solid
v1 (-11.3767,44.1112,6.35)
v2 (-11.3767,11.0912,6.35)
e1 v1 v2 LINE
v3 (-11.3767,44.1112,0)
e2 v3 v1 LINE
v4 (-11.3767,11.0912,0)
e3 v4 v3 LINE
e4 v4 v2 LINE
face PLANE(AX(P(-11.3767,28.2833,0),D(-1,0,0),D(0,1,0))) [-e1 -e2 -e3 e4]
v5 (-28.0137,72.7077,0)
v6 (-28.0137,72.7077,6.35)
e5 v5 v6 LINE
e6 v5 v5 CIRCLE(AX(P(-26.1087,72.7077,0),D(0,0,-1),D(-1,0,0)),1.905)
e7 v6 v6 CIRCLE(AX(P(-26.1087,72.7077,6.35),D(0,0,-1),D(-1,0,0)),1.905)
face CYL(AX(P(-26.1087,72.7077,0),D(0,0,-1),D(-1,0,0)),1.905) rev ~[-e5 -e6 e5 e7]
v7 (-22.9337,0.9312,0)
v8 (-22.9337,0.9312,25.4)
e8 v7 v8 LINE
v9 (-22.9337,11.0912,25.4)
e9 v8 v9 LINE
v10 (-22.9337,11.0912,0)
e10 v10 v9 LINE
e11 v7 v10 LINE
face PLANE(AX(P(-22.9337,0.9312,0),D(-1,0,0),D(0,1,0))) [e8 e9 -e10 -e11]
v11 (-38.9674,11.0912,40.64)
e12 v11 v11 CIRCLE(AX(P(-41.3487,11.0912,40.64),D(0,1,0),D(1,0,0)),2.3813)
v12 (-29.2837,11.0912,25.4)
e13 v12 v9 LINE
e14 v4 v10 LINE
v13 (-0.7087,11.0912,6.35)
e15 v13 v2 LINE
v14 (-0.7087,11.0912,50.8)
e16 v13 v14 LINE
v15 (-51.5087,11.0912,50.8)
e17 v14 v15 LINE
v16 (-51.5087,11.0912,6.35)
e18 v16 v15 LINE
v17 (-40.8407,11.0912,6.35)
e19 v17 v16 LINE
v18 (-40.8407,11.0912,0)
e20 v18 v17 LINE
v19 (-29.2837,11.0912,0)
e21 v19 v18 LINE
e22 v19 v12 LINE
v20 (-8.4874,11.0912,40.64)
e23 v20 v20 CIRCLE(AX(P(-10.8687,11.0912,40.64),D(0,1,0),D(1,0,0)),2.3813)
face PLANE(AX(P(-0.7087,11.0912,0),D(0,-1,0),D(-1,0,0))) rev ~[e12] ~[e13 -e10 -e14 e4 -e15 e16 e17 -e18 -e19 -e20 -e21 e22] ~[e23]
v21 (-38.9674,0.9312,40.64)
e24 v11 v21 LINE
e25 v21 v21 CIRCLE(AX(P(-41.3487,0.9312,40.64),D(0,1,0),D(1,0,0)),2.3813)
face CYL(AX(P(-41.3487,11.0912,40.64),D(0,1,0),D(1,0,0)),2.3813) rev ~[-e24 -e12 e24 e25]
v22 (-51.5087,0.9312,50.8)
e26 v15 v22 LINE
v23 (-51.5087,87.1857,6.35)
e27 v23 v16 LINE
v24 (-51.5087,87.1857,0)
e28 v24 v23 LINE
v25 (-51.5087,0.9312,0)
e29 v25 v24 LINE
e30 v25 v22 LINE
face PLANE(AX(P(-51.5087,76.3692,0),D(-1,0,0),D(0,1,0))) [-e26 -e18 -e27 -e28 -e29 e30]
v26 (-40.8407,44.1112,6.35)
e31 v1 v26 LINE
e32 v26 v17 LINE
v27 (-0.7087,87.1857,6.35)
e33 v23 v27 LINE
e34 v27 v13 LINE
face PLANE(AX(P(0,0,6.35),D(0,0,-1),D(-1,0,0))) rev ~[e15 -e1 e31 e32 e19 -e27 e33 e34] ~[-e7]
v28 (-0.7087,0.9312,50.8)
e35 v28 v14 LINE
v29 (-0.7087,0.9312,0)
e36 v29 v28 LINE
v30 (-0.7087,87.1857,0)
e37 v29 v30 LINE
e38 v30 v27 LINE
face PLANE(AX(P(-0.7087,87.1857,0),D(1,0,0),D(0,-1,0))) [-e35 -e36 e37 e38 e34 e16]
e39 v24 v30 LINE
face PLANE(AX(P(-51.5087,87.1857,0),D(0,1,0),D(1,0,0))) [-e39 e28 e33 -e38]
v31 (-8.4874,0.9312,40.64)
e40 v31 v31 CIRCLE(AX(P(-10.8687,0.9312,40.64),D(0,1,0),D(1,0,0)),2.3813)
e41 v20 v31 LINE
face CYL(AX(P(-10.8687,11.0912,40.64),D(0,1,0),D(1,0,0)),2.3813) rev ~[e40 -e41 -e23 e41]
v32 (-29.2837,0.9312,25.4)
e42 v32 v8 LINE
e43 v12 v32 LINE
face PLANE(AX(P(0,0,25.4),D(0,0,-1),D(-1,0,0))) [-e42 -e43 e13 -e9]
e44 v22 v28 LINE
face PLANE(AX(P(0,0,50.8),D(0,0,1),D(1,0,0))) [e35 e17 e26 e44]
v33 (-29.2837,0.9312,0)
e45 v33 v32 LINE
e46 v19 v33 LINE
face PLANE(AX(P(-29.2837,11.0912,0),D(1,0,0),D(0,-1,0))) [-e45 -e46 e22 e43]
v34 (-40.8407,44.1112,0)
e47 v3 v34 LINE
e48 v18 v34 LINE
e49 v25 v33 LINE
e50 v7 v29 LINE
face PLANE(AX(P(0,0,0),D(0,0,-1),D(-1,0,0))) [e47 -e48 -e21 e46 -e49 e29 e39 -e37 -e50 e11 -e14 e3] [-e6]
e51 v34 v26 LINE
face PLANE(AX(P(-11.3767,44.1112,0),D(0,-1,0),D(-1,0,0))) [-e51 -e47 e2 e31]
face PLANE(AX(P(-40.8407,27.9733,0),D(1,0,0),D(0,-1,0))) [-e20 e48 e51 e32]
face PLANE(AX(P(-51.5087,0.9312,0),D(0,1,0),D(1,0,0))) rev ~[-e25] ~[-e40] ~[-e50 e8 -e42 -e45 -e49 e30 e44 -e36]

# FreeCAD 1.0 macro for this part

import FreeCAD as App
import Part
import Sketcher

V = App.Vector
Q = App.Units.Quantity

doc = App.newDocument("Part")
body = doc.addObject("PartDesign::Body", "Body")

# Sketch on XY plane
sketch1 = doc.addObject("Sketcher::SketchObject", "Sketch")
body.addObject(sketch1)
sketch1.AttachmentSupport = (doc.XY_Plane, [""])
sketch1.MapMode = "FlatFace"
sketch1.addGeometry([
    Part.LineSegment(V(-52, 11, 0), V(-52, 1, 0)),
    Part.LineSegment(V(-52, 1, 0), V(-1, 1, 0)),
    Part.LineSegment(V(-1, 1, 0), V(-1, 11, 0)),
    Part.LineSegment(V(-1, 11, 0), V(-52, 11, 0)),
], False)
sketch1.addConstraint([
    Sketcher.Constraint("Coincident", 0, 2, 1, 1),
    Sketcher.Constraint("Coincident", 1, 2, 2, 1),
    Sketcher.Constraint("Coincident", 2, 2, 3, 1),
    Sketcher.Constraint("Coincident", 3, 2, 0, 1),
    Sketcher.Constraint("Vertical", 0),
    Sketcher.Constraint("Horizontal", 1),
    Sketcher.Constraint("Vertical", 2),
    Sketcher.Constraint("Horizontal", 3),
    Sketcher.Constraint("DistanceX", 1, 1, 1, 2, Q("2 in")),
    Sketcher.Constraint("DistanceY", 0, 2, 0, 1, Q("0.4 in")),
    Sketcher.Constraint("DistanceX", 0, 2, -1, 1, Q("2.0279 in")),
    Sketcher.Constraint("DistanceY", -1, 1, 0, 2, Q("0.9312 mm")),
])
pad1 = doc.addObject("PartDesign::Pad", "Pad")
body.addObject(pad1)
pad1.Profile = sketch1
pad1.Length = Q("2 in")

# Sketch on XY plane
sketch2 = doc.addObject("Sketcher::SketchObject", "Sketch001")
body.addObject(sketch2)
sketch2.AttachmentSupport = (doc.XY_Plane, [""])
sketch2.MapMode = "FlatFace"
sketch2.addGeometry([
    Part.LineSegment(V(-41, 11, 0), V(-52, 11, 0)),  # 0
    Part.LineSegment(V(-52, 11, 0), V(-52, 62, 0)),  # 1
    Part.LineSegment(V(-52, 62, 0), V(-1, 62, 0)),  # 2
    Part.LineSegment(V(-1, 62, 0), V(-1, 11, 0)),  # 3
    Part.LineSegment(V(-1, 11, 0), V(-11, 11, 0)),  # 4
    Part.LineSegment(V(-11, 11, 0), V(-11, 44, 0)),  # 5
    Part.LineSegment(V(-11, 44, 0), V(-41, 44, 0)),  # 6
    Part.LineSegment(V(-41, 44, 0), V(-41, 11, 0)),  # 7
], False)
sketch2.addConstraint([
    Sketcher.Constraint("Coincident", 0, 2, 1, 1),
    Sketcher.Constraint("Coincident", 1, 2, 2, 1),
    Sketcher.Constraint("Coincident", 2, 2, 3, 1),
    Sketcher.Constraint("Coincident", 3, 2, 4, 1),
    Sketcher.Constraint("Coincident", 4, 2, 5, 1),
    Sketcher.Constraint("Coincident", 5, 2, 6, 1),
    Sketcher.Constraint("Coincident", 6, 2, 7, 1),
    Sketcher.Constraint("Coincident", 7, 2, 0, 1),
    Sketcher.Constraint("Horizontal", 0),
    Sketcher.Constraint("Vertical", 1),
    Sketcher.Constraint("Horizontal", 2),
    Sketcher.Constraint("Vertical", 3),
    Sketcher.Constraint("Horizontal", 4),
    Sketcher.Constraint("Vertical", 5),
    Sketcher.Constraint("Horizontal", 6),
    Sketcher.Constraint("Vertical", 7),
    Sketcher.Constraint("Horizontal", 0, 2, 3, 2),
    Sketcher.Constraint("Equal", 0, 4),
    Sketcher.Constraint("Equal", 2, 1),
    Sketcher.Constraint("DistanceX", 2, 1, 2, 2, Q("2 in")),
    Sketcher.Constraint("DistanceY", 5, 1, 5, 2, Q("1.3 in")),
    Sketcher.Constraint("DistanceX", 0, 2, 0, 1, Q("0.42 in")),
    Sketcher.Constraint("DistanceX", 0, 2, -1, 1, Q("2.0279 in")),
    Sketcher.Constraint("DistanceY", -1, 1, 0, 2, Q("11.0912 mm")),
])
pad2 = doc.addObject("PartDesign::Pad", "Pad001")
body.addObject(pad2)
pad2.Profile = sketch2
pad2.Length = Q("0.25 in")

# Sketch on XY plane
sketch3 = doc.addObject("Sketcher::SketchObject", "Sketch002")
body.addObject(sketch3)
sketch3.AttachmentSupport = (doc.XY_Plane, [""])
sketch3.MapMode = "FlatFace"
sketch3.addGeometry([
    Part.LineSegment(V(-1, 76, 0), V(-1, 62, 0)),
    Part.LineSegment(V(-1, 62, 0), V(-52, 62, 0)),
    Part.LineSegment(V(-52, 62, 0), V(-52, 76, 0)),
    Part.LineSegment(V(-52, 76, 0), V(-1, 76, 0)),
], False)
sketch3.addConstraint([
    Sketcher.Constraint("Coincident", 0, 2, 1, 1),
    Sketcher.Constraint("Coincident", 1, 2, 2, 1),
    Sketcher.Constraint("Coincident", 2, 2, 3, 1),
    Sketcher.Constraint("Coincident", 3, 2, 0, 1),
    Sketcher.Constraint("Vertical", 0),
    Sketcher.Constraint("Horizontal", 1),
    Sketcher.Constraint("Vertical", 2),
    Sketcher.Constraint("Horizontal", 3),
    Sketcher.Constraint("DistanceY", 0, 2, 0, 1, Q("0.57 in")),
    Sketcher.Constraint("DistanceX", 1, 2, 1, 1, Q("2 in")),
    Sketcher.Constraint("DistanceX", 0, 2, -1, 1, Q("0.0279 in")),
    Sketcher.Constraint("DistanceY", -1, 1, 0, 2, Q("61.8912 mm")),
])
pad3 = doc.addObject("PartDesign::Pad", "Pad002")
body.addObject(pad3)
pad3.Profile = sketch3
pad3.Length = Q("0.25 in")

# Sketch on XY plane
sketch4 = doc.addObject("Sketcher::SketchObject", "Sketch003")
body.addObject(sketch4)
sketch4.AttachmentSupport = (doc.XY_Plane, [""])
sketch4.MapMode = "FlatFace"
sketch4.addGeometry(Part.Circle(V(-26.1, 72.7, 0), V(0, 0, 1), 1.9), False)
sketch4.addConstraint([
    Sketcher.Constraint("Diameter", 0, Q("0.15 in")),
    Sketcher.Constraint("DistanceX", 0, 3, -1, 1, Q("1.0279 in")),
    Sketcher.Constraint("DistanceY", -1, 1, 0, 3, Q("2.8625 in")),
])
pocket1 = doc.addObject("PartDesign::Pocket", "Pocket")
body.addObject(pocket1)
pocket1.Profile = sketch4
pocket1.Type = "UpToFirst"
pocket1.Reversed = True

# Sketch on XY plane
sketch5 = doc.addObject("Sketcher::SketchObject", "Sketch004")
body.addObject(sketch5)
sketch5.AttachmentSupport = (doc.XY_Plane, [""])
sketch5.MapMode = "FlatFace"
sketch5.addGeometry([
    Part.LineSegment(V(-1, 87, 0), V(-1, 76, 0)),
    Part.LineSegment(V(-1, 76, 0), V(-52, 76, 0)),
    Part.LineSegment(V(-52, 76, 0), V(-52, 87, 0)),
    Part.LineSegment(V(-52, 87, 0), V(-1, 87, 0)),
], False)
sketch5.addConstraint([
    Sketcher.Constraint("Coincident", 0, 2, 1, 1),
    Sketcher.Constraint("Coincident", 1, 2, 2, 1),
    Sketcher.Constraint("Coincident", 2, 2, 3, 1),
    Sketcher.Constraint("Coincident", 3, 2, 0, 1),
    Sketcher.Constraint("Vertical", 0),
    Sketcher.Constraint("Horizontal", 1),
    Sketcher.Constraint("Vertical", 2),
    Sketcher.Constraint("Horizontal", 3),
    Sketcher.Constraint("DistanceX", 1, 2, 1, 1, Q("2 in")),
    Sketcher.Constraint("DistanceY", 0, 2, 0, 1, Q("10.8165 mm")),
    Sketcher.Constraint("DistanceX", 0, 2, -1, 1, Q("0.0279 in")),
    Sketcher.Constraint("DistanceY", -1, 1, 2, 2, Q("3.4325 in")),
])
pad4 = doc.addObject("PartDesign::Pad", "Pad003")
body.addObject(pad4)
pad4.Profile = sketch5
pad4.Length = Q("0.25 in")

# Sketch on XZ plane
sketch6 = doc.addObject("Sketcher::SketchObject", "Sketch005")
body.addObject(sketch6)
sketch6.AttachmentSupport = (doc.XZ_Plane, [""])
sketch6.MapMode = "FlatFace"
sketch6.AttachmentOffset = App.Placement(V(0, 0, -11.0912), App.Rotation())
sketch6.addGeometry([
    Part.Circle(V(-10.9, 40.6, 0), V(0, 0, 1), 2.4),
    Part.Circle(V(-41.3, 40.6, 0), V(0, 0, 1), 2.4),
], False)
sketch6.addConstraint([
    Sketcher.Constraint("Equal", 0, 1),
    Sketcher.Constraint("Horizontal", 0, 3, 1, 3),
    Sketcher.Constraint("Diameter", 0, Q("0.1875 in")),
    Sketcher.Constraint("DistanceY", -1, 1, 0, 3, Q("1.6 in")),
    Sketcher.Constraint("DistanceX", 1, 3, 0, 3, Q("1.2 in")),
    Sketcher.Constraint("DistanceX", 0, 3, -1, 1, Q("0.4279 in")),
])
pocket2 = doc.addObject("PartDesign::Pocket", "Pocket001")
body.addObject(pocket2)
pocket2.Profile = sketch6
pocket2.Type = "UpToFirst"
pocket2.Reversed = True

# Sketch on XY plane
sketch7 = doc.addObject("Sketcher::SketchObject", "Sketch006")
body.addObject(sketch7)
sketch7.AttachmentSupport = (doc.XY_Plane, [""])
sketch7.MapMode = "FlatFace"
sketch7.addGeometry([
    Part.LineSegment(V(-23, 11, 0), V(-23, 1, 0)),
    Part.LineSegment(V(-23, 1, 0), V(-29, 1, 0)),
    Part.LineSegment(V(-29, 1, 0), V(-29, 11, 0)),
    Part.LineSegment(V(-29, 11, 0), V(-23, 11, 0)),
], False)
sketch7.addConstraint([
    Sketcher.Constraint("Coincident", 0, 2, 1, 1),
    Sketcher.Constraint("Coincident", 1, 2, 2, 1),
    Sketcher.Constraint("Coincident", 2, 2, 3, 1),
    Sketcher.Constraint("Coincident", 3, 2, 0, 1),
    Sketcher.Constraint("Vertical", 0),
    Sketcher.Constraint("Horizontal", 1),
    Sketcher.Constraint("Vertical", 2),
    Sketcher.Constraint("Horizontal", 3),
    Sketcher.Constraint("DistanceX", 1, 2, 1, 1, Q("0.25 in")),
    Sketcher.Constraint("DistanceY", 0, 2, 0, 1, Q("0.4 in")),
    Sketcher.Constraint("DistanceX", 0, 2, -1, 1, Q("0.9029 in")),
    Sketcher.Constraint("DistanceY", -1, 1, 0, 2, Q("0.9312 mm")),
])
pocket3 = doc.addObject("PartDesign::Pocket", "Pocket002")
body.addObject(pocket3)
pocket3.Profile = sketch7
pocket3.Length = Q("1 in")
pocket3.Reversed = True

doc.recompute()
